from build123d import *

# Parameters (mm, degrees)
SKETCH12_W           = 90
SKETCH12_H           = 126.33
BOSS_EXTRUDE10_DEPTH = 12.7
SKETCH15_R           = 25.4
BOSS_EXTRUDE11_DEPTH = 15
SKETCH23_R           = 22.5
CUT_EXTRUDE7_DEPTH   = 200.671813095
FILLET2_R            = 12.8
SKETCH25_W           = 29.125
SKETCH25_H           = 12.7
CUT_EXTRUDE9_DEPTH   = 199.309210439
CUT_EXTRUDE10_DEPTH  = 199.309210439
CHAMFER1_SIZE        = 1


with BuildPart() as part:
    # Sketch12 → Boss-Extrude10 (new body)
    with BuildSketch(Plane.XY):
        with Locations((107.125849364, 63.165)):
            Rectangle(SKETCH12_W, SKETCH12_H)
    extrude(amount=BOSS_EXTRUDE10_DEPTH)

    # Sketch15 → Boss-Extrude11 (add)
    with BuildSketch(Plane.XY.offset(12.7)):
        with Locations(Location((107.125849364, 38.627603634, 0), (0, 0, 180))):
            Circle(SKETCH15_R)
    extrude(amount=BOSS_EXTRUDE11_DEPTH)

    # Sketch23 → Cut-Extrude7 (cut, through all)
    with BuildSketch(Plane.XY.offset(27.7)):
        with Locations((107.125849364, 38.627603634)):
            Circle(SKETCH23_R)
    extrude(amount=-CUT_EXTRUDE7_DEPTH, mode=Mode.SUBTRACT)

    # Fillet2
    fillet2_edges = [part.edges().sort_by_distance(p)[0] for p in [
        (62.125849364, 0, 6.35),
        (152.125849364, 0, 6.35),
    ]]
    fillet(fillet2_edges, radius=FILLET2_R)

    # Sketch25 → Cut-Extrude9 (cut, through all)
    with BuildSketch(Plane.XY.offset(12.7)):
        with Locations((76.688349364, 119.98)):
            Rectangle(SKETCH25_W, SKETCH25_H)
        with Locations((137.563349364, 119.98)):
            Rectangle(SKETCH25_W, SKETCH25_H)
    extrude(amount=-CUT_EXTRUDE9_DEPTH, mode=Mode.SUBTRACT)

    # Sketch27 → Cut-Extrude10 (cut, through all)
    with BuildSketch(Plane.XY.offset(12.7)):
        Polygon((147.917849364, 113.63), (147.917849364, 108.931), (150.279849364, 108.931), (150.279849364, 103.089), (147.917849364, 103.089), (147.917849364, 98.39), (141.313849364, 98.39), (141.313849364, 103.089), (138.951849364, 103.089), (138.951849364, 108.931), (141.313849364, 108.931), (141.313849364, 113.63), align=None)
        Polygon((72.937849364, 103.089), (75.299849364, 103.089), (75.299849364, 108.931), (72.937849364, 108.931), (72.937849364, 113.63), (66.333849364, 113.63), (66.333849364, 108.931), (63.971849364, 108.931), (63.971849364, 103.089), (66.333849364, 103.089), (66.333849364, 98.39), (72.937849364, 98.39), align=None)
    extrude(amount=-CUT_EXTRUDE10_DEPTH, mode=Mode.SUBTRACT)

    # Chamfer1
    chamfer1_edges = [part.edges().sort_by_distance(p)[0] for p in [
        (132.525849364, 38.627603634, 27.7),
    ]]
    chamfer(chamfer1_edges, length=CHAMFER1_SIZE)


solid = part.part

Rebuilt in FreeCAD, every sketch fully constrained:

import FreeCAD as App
import Part
import Sketcher

V = App.Vector


def edges_at(feature, points):
    """Names of the edges that pass closest to the given points."""
    edges = feature.Shape.Edges
    near = lambda p: min(range(len(edges)), key=lambda i: edges[i].distToShape(Part.Vertex(*p))[0])
    return sorted({f"Edge{near(p) + 1}" for p in points})

doc = App.newDocument("Part")
body = doc.addObject("PartDesign::Body", "Body")

# Sketch on XY plane
sketch1 = doc.addObject("Sketcher::SketchObject", "Sketch")
body.addObject(sketch1)
sketch1.AttachmentSupport = (doc.XY_Plane, [""])
sketch1.MapMode = "FlatFace"
sketch1.addGeometry([
    Part.LineSegment(V(62.125849, 126.33, 0), V(62.125849, 0, 0)),
    Part.LineSegment(V(62.125849, 0, 0), V(152.125849, 0, 0)),
    Part.LineSegment(V(152.125849, 0, 0), V(152.125849, 126.33, 0)),
    Part.LineSegment(V(152.125849, 126.33, 0), V(62.125849, 126.33, 0)),
], False)
sketch1.addConstraint([
    Sketcher.Constraint("Coincident", 0, 2, 1, 1),
    Sketcher.Constraint("Coincident", 1, 2, 2, 1),
    Sketcher.Constraint("Coincident", 2, 2, 3, 1),
    Sketcher.Constraint("Coincident", 3, 2, 0, 1),
    Sketcher.Constraint("Vertical", 0),
    Sketcher.Constraint("Horizontal", 1),
    Sketcher.Constraint("Vertical", 2),
    Sketcher.Constraint("Horizontal", 3),
    Sketcher.Constraint("PointOnObject", 0, 2, -1),
    Sketcher.Constraint("DistanceX", 1, 1, 1, 2, 90.0),
    Sketcher.Constraint("DistanceY", 0, 2, 0, 1, 126.33),
    Sketcher.Constraint("DistanceX", -1, 1, 0, 2, 62.125849),
])
pad1 = doc.addObject("PartDesign::Pad", "Pad")
body.addObject(pad1)
pad1.Profile = sketch1
pad1.Length = 12.7

# Sketch on XY plane
sketch2 = doc.addObject("Sketcher::SketchObject", "Sketch001")
body.addObject(sketch2)
sketch2.AttachmentSupport = (doc.XY_Plane, [""])
sketch2.MapMode = "FlatFace"
sketch2.AttachmentOffset = App.Placement(V(0, 0, 12.7), App.Rotation())
sketch2.addGeometry(Part.Circle(V(107.125849, 38.627604, 0), V(0, 0, 1), 25.4), False)
sketch2.addConstraint([
    Sketcher.Constraint("Diameter", 0, 50.8),
    Sketcher.Constraint("DistanceX", -1, 1, 0, 3, 107.125849),
    Sketcher.Constraint("DistanceY", -1, 1, 0, 3, 38.627604),
])
pad2 = doc.addObject("PartDesign::Pad", "Pad001")
body.addObject(pad2)
pad2.Profile = sketch2
pad2.Length = 15

# Sketch on XY plane
sketch3 = doc.addObject("Sketcher::SketchObject", "Sketch002")
body.addObject(sketch3)
sketch3.AttachmentSupport = (doc.XY_Plane, [""])
sketch3.MapMode = "FlatFace"
sketch3.AttachmentOffset = App.Placement(V(0, 0, 27.7), App.Rotation())
sketch3.addGeometry(Part.Circle(V(107.125849, 38.627604, 0), V(0, 0, 1), 22.5), False)
sketch3.addConstraint([
    Sketcher.Constraint("Diameter", 0, 45.0),
    Sketcher.Constraint("DistanceX", -1, 1, 0, 3, 107.125849),
    Sketcher.Constraint("DistanceY", -1, 1, 0, 3, 38.627604),
])
pocket1 = doc.addObject("PartDesign::Pocket", "Pocket")
body.addObject(pocket1)
pocket1.Profile = sketch3
pocket1.Type = "ThroughAll"
doc.recompute()

fillet = doc.addObject("PartDesign::Fillet", "Fillet")
body.addObject(fillet)
fillet.Base = (pocket1, edges_at(pocket1, [(62.126, 0, 6.35), (152.126, 0, 6.35)]))
fillet.Radius = 12.8

# Sketch on XY plane
sketch4 = doc.addObject("Sketcher::SketchObject", "Sketch003")
body.addObject(sketch4)
sketch4.AttachmentSupport = (doc.XY_Plane, [""])
sketch4.MapMode = "FlatFace"
sketch4.AttachmentOffset = App.Placement(V(0, 0, 12.7), App.Rotation())
sketch4.addGeometry([
    Part.LineSegment(V(62.125849, 126.33, 0), V(62.125849, 113.63, 0)),  # 0
    Part.LineSegment(V(62.125849, 113.63, 0), V(91.250849, 113.63, 0)),  # 1
    Part.LineSegment(V(91.250849, 113.63, 0), V(91.250849, 126.33, 0)),  # 2
    Part.LineSegment(V(91.250849, 126.33, 0), V(62.125849, 126.33, 0)),  # 3
    Part.LineSegment(V(123.000849, 126.33, 0), V(123.000849, 113.63, 0)),  # 4
    Part.LineSegment(V(123.000849, 113.63, 0), V(152.125849, 113.63, 0)),  # 5
    Part.LineSegment(V(152.125849, 113.63, 0), V(152.125849, 126.33, 0)),  # 6
    Part.LineSegment(V(152.125849, 126.33, 0), V(123.000849, 126.33, 0)),  # 7
], False)
sketch4.addConstraint([
    Sketcher.Constraint("Coincident", 0, 2, 1, 1),
    Sketcher.Constraint("Coincident", 1, 2, 2, 1),
    Sketcher.Constraint("Coincident", 2, 2, 3, 1),
    Sketcher.Constraint("Coincident", 3, 2, 0, 1),
    Sketcher.Constraint("Coincident", 4, 2, 5, 1),
    Sketcher.Constraint("Coincident", 5, 2, 6, 1),
    Sketcher.Constraint("Coincident", 6, 2, 7, 1),
    Sketcher.Constraint("Coincident", 7, 2, 4, 1),
    Sketcher.Constraint("Vertical", 0),
    Sketcher.Constraint("Horizontal", 1),
    Sketcher.Constraint("Vertical", 2),
    Sketcher.Constraint("Horizontal", 3),
    Sketcher.Constraint("Vertical", 4),
    Sketcher.Constraint("Horizontal", 5),
    Sketcher.Constraint("Vertical", 6),
    Sketcher.Constraint("Horizontal", 7),
    Sketcher.Constraint("Horizontal", 1, 2, 4, 2),
    Sketcher.Constraint("Horizontal", 3, 2, 6, 2),
    Sketcher.Constraint("Equal", 3, 5),
    Sketcher.Constraint("DistanceY", 0, 2, 0, 1, 12.7),
    Sketcher.Constraint("DistanceX", 0, 2, 5, 2, 90.0),
    Sketcher.Constraint("DistanceX", 1, 1, 1, 2, 29.125),
    Sketcher.Constraint("DistanceY", -1, 1, 0, 2, 113.63),
    Sketcher.Constraint("DistanceX", -1, 1, 0, 2, 62.125849),
])
pocket2 = doc.addObject("PartDesign::Pocket", "Pocket001")
body.addObject(pocket2)
pocket2.Profile = sketch4
pocket2.Type = "ThroughAll"

# Sketch on XY plane
sketch5 = doc.addObject("Sketcher::SketchObject", "Sketch004")
body.addObject(sketch5)
sketch5.AttachmentSupport = (doc.XY_Plane, [""])
sketch5.MapMode = "FlatFace"
sketch5.AttachmentOffset = App.Placement(V(0, 0, 12.7), App.Rotation())
sketch5.addGeometry([
    Part.LineSegment(V(147.917849, 108.931, 0), V(147.917849, 113.63, 0)),  # 0
    Part.LineSegment(V(147.917849, 113.63, 0), V(141.313849, 113.63, 0)),  # 1
    Part.LineSegment(V(141.313849, 113.63, 0), V(141.313849, 108.931, 0)),  # 2
    Part.LineSegment(V(141.313849, 108.931, 0), V(138.951849, 108.931, 0)),  # 3
    Part.LineSegment(V(138.951849, 108.931, 0), V(138.951849, 103.089, 0)),  # 4
    Part.LineSegment(V(138.951849, 103.089, 0), V(141.313849, 103.089, 0)),  # 5
    Part.LineSegment(V(141.313849, 103.089, 0), V(141.313849, 98.39, 0)),  # 6
    Part.LineSegment(V(141.313849, 98.39, 0), V(147.917849, 98.39, 0)),  # 7
    Part.LineSegment(V(147.917849, 98.39, 0), V(147.917849, 103.089, 0)),  # 8
    Part.LineSegment(V(147.917849, 103.089, 0), V(150.279849, 103.089, 0)),  # 9
    Part.LineSegment(V(150.279849, 103.089, 0), V(150.279849, 108.931, 0)),  # 10
    Part.LineSegment(V(150.279849, 108.931, 0), V(147.917849, 108.931, 0)),  # 11
    Part.LineSegment(V(72.937849, 103.089, 0), V(75.299849, 103.089, 0)),  # 12
    Part.LineSegment(V(75.299849, 103.089, 0), V(75.299849, 108.931, 0)),  # 13
    Part.LineSegment(V(75.299849, 108.931, 0), V(72.937849, 108.931, 0)),  # 14
    Part.LineSegment(V(72.937849, 108.931, 0), V(72.937849, 113.63, 0)),  # 15
    Part.LineSegment(V(72.937849, 113.63, 0), V(66.333849, 113.63, 0)),  # 16
    Part.LineSegment(V(66.333849, 113.63, 0), V(66.333849, 108.931, 0)),  # 17
    Part.LineSegment(V(66.333849, 108.931, 0), V(63.971849, 108.931, 0)),  # 18
    Part.LineSegment(V(63.971849, 108.931, 0), V(63.971849, 103.089, 0)),  # 19
    Part.LineSegment(V(63.971849, 103.089, 0), V(66.333849, 103.089, 0)),  # 20
    Part.LineSegment(V(66.333849, 103.089, 0), V(66.333849, 98.39, 0)),  # 21
    Part.LineSegment(V(66.333849, 98.39, 0), V(72.937849, 98.39, 0)),  # 22
    Part.LineSegment(V(72.937849, 98.39, 0), V(72.937849, 103.089, 0)),  # 23
], False)
sketch5.addConstraint([
    Sketcher.Constraint("Coincident", 0, 2, 1, 1),
    Sketcher.Constraint("Coincident", 1, 2, 2, 1),
    Sketcher.Constraint("Coincident", 2, 2, 3, 1),
    Sketcher.Constraint("Coincident", 3, 2, 4, 1),
    Sketcher.Constraint("Coincident", 4, 2, 5, 1),
    Sketcher.Constraint("Coincident", 5, 2, 6, 1),
    Sketcher.Constraint("Coincident", 6, 2, 7, 1),
    Sketcher.Constraint("Coincident", 7, 2, 8, 1),
    Sketcher.Constraint("Coincident", 8, 2, 9, 1),
    Sketcher.Constraint("Coincident", 9, 2, 10, 1),
    Sketcher.Constraint("Coincident", 10, 2, 11, 1),
    Sketcher.Constraint("Coincident", 11, 2, 0, 1),
    Sketcher.Constraint("Coincident", 12, 2, 13, 1),
    Sketcher.Constraint("Coincident", 13, 2, 14, 1),
    Sketcher.Constraint("Coincident", 14, 2, 15, 1),
    Sketcher.Constraint("Coincident", 15, 2, 16, 1),
    Sketcher.Constraint("Coincident", 16, 2, 17, 1),
    Sketcher.Constraint("Coincident", 17, 2, 18, 1),
    Sketcher.Constraint("Coincident", 18, 2, 19, 1),
    Sketcher.Constraint("Coincident", 19, 2, 20, 1),
    Sketcher.Constraint("Coincident", 20, 2, 21, 1),
    Sketcher.Constraint("Coincident", 21, 2, 22, 1),
    Sketcher.Constraint("Coincident", 22, 2, 23, 1),
    Sketcher.Constraint("Coincident", 23, 2, 12, 1),
    Sketcher.Constraint("Vertical", 0),
    Sketcher.Constraint("Horizontal", 1),
    Sketcher.Constraint("Vertical", 2),
    Sketcher.Constraint("Horizontal", 3),
    Sketcher.Constraint("Vertical", 4),
    Sketcher.Constraint("Horizontal", 5),
    Sketcher.Constraint("Vertical", 6),
    Sketcher.Constraint("Horizontal", 7),
    Sketcher.Constraint("Vertical", 8),
    Sketcher.Constraint("Horizontal", 9),
    Sketcher.Constraint("Vertical", 10),
    Sketcher.Constraint("Horizontal", 11),
    Sketcher.Constraint("Horizontal", 12),
    Sketcher.Constraint("Vertical", 13),
    Sketcher.Constraint("Horizontal", 14),
    Sketcher.Constraint("Vertical", 15),
    Sketcher.Constraint("Horizontal", 16),
    Sketcher.Constraint("Vertical", 17),
    Sketcher.Constraint("Horizontal", 18),
    Sketcher.Constraint("Vertical", 19),
    Sketcher.Constraint("Horizontal", 20),
    Sketcher.Constraint("Vertical", 21),
    Sketcher.Constraint("Horizontal", 22),
    Sketcher.Constraint("Vertical", 23),
    Sketcher.Constraint("Horizontal", 5, 2, 8, 2),
    Sketcher.Constraint("Horizontal", 3, 2, 10, 2),
    Sketcher.Constraint("Horizontal", 9, 2, 12, 2),
    Sketcher.Constraint("Horizontal", 11, 2, 13, 2),
    Sketcher.Constraint("Horizontal", 1, 2, 15, 2),
    Sketcher.Constraint("Horizontal", 14, 2, 17, 2),
    Sketcher.Constraint("Horizontal", 12, 2, 19, 2),
    Sketcher.Constraint("Horizontal", 7, 2, 21, 2),
    Sketcher.Constraint("Vertical", 2, 2, 5, 2),
    Sketcher.Constraint("Vertical", 0, 2, 7, 2),
    Sketcher.Constraint("Vertical", 17, 2, 20, 2),
    Sketcher.Constraint("Vertical", 15, 2, 22, 2),
    Sketcher.Constraint("Equal", 5, 9),
    Sketcher.Constraint("Equal", 11, 12),
    Sketcher.Constraint("Equal", 7, 16),
    Sketcher.Constraint("Equal", 14, 18),
    Sketcher.Constraint("Equal", 2, 6),
    Sketcher.Constraint("DistanceX", 1, 2, 1, 1, 6.604),
    Sketcher.Constraint("DistanceX", 3, 2, 3, 1, 2.362),
    Sketcher.Constraint("DistanceY", 0, 1, 0, 2, 4.699),
    Sketcher.Constraint("DistanceY", 4, 2, 4, 1, 5.842),
    Sketcher.Constraint("DistanceY", -1, 1, 0, 2, 113.63),
    Sketcher.Constraint("DistanceX", 12, 2, 4, 2, 63.652),
    Sketcher.Constraint("DistanceX", -1, 1, 0, 2, 147.917849),
])
pocket3 = doc.addObject("PartDesign::Pocket", "Pocket002")
body.addObject(pocket3)
pocket3.Profile = sketch5
pocket3.Type = "ThroughAll"
doc.recompute()

chamfer = doc.addObject("PartDesign::Chamfer", "Chamfer")
body.addObject(chamfer)
chamfer.Base = (pocket3, edges_at(pocket3, [(132.526, 38.628, 27.7)]))
chamfer.Size = 1

doc.recompute()
